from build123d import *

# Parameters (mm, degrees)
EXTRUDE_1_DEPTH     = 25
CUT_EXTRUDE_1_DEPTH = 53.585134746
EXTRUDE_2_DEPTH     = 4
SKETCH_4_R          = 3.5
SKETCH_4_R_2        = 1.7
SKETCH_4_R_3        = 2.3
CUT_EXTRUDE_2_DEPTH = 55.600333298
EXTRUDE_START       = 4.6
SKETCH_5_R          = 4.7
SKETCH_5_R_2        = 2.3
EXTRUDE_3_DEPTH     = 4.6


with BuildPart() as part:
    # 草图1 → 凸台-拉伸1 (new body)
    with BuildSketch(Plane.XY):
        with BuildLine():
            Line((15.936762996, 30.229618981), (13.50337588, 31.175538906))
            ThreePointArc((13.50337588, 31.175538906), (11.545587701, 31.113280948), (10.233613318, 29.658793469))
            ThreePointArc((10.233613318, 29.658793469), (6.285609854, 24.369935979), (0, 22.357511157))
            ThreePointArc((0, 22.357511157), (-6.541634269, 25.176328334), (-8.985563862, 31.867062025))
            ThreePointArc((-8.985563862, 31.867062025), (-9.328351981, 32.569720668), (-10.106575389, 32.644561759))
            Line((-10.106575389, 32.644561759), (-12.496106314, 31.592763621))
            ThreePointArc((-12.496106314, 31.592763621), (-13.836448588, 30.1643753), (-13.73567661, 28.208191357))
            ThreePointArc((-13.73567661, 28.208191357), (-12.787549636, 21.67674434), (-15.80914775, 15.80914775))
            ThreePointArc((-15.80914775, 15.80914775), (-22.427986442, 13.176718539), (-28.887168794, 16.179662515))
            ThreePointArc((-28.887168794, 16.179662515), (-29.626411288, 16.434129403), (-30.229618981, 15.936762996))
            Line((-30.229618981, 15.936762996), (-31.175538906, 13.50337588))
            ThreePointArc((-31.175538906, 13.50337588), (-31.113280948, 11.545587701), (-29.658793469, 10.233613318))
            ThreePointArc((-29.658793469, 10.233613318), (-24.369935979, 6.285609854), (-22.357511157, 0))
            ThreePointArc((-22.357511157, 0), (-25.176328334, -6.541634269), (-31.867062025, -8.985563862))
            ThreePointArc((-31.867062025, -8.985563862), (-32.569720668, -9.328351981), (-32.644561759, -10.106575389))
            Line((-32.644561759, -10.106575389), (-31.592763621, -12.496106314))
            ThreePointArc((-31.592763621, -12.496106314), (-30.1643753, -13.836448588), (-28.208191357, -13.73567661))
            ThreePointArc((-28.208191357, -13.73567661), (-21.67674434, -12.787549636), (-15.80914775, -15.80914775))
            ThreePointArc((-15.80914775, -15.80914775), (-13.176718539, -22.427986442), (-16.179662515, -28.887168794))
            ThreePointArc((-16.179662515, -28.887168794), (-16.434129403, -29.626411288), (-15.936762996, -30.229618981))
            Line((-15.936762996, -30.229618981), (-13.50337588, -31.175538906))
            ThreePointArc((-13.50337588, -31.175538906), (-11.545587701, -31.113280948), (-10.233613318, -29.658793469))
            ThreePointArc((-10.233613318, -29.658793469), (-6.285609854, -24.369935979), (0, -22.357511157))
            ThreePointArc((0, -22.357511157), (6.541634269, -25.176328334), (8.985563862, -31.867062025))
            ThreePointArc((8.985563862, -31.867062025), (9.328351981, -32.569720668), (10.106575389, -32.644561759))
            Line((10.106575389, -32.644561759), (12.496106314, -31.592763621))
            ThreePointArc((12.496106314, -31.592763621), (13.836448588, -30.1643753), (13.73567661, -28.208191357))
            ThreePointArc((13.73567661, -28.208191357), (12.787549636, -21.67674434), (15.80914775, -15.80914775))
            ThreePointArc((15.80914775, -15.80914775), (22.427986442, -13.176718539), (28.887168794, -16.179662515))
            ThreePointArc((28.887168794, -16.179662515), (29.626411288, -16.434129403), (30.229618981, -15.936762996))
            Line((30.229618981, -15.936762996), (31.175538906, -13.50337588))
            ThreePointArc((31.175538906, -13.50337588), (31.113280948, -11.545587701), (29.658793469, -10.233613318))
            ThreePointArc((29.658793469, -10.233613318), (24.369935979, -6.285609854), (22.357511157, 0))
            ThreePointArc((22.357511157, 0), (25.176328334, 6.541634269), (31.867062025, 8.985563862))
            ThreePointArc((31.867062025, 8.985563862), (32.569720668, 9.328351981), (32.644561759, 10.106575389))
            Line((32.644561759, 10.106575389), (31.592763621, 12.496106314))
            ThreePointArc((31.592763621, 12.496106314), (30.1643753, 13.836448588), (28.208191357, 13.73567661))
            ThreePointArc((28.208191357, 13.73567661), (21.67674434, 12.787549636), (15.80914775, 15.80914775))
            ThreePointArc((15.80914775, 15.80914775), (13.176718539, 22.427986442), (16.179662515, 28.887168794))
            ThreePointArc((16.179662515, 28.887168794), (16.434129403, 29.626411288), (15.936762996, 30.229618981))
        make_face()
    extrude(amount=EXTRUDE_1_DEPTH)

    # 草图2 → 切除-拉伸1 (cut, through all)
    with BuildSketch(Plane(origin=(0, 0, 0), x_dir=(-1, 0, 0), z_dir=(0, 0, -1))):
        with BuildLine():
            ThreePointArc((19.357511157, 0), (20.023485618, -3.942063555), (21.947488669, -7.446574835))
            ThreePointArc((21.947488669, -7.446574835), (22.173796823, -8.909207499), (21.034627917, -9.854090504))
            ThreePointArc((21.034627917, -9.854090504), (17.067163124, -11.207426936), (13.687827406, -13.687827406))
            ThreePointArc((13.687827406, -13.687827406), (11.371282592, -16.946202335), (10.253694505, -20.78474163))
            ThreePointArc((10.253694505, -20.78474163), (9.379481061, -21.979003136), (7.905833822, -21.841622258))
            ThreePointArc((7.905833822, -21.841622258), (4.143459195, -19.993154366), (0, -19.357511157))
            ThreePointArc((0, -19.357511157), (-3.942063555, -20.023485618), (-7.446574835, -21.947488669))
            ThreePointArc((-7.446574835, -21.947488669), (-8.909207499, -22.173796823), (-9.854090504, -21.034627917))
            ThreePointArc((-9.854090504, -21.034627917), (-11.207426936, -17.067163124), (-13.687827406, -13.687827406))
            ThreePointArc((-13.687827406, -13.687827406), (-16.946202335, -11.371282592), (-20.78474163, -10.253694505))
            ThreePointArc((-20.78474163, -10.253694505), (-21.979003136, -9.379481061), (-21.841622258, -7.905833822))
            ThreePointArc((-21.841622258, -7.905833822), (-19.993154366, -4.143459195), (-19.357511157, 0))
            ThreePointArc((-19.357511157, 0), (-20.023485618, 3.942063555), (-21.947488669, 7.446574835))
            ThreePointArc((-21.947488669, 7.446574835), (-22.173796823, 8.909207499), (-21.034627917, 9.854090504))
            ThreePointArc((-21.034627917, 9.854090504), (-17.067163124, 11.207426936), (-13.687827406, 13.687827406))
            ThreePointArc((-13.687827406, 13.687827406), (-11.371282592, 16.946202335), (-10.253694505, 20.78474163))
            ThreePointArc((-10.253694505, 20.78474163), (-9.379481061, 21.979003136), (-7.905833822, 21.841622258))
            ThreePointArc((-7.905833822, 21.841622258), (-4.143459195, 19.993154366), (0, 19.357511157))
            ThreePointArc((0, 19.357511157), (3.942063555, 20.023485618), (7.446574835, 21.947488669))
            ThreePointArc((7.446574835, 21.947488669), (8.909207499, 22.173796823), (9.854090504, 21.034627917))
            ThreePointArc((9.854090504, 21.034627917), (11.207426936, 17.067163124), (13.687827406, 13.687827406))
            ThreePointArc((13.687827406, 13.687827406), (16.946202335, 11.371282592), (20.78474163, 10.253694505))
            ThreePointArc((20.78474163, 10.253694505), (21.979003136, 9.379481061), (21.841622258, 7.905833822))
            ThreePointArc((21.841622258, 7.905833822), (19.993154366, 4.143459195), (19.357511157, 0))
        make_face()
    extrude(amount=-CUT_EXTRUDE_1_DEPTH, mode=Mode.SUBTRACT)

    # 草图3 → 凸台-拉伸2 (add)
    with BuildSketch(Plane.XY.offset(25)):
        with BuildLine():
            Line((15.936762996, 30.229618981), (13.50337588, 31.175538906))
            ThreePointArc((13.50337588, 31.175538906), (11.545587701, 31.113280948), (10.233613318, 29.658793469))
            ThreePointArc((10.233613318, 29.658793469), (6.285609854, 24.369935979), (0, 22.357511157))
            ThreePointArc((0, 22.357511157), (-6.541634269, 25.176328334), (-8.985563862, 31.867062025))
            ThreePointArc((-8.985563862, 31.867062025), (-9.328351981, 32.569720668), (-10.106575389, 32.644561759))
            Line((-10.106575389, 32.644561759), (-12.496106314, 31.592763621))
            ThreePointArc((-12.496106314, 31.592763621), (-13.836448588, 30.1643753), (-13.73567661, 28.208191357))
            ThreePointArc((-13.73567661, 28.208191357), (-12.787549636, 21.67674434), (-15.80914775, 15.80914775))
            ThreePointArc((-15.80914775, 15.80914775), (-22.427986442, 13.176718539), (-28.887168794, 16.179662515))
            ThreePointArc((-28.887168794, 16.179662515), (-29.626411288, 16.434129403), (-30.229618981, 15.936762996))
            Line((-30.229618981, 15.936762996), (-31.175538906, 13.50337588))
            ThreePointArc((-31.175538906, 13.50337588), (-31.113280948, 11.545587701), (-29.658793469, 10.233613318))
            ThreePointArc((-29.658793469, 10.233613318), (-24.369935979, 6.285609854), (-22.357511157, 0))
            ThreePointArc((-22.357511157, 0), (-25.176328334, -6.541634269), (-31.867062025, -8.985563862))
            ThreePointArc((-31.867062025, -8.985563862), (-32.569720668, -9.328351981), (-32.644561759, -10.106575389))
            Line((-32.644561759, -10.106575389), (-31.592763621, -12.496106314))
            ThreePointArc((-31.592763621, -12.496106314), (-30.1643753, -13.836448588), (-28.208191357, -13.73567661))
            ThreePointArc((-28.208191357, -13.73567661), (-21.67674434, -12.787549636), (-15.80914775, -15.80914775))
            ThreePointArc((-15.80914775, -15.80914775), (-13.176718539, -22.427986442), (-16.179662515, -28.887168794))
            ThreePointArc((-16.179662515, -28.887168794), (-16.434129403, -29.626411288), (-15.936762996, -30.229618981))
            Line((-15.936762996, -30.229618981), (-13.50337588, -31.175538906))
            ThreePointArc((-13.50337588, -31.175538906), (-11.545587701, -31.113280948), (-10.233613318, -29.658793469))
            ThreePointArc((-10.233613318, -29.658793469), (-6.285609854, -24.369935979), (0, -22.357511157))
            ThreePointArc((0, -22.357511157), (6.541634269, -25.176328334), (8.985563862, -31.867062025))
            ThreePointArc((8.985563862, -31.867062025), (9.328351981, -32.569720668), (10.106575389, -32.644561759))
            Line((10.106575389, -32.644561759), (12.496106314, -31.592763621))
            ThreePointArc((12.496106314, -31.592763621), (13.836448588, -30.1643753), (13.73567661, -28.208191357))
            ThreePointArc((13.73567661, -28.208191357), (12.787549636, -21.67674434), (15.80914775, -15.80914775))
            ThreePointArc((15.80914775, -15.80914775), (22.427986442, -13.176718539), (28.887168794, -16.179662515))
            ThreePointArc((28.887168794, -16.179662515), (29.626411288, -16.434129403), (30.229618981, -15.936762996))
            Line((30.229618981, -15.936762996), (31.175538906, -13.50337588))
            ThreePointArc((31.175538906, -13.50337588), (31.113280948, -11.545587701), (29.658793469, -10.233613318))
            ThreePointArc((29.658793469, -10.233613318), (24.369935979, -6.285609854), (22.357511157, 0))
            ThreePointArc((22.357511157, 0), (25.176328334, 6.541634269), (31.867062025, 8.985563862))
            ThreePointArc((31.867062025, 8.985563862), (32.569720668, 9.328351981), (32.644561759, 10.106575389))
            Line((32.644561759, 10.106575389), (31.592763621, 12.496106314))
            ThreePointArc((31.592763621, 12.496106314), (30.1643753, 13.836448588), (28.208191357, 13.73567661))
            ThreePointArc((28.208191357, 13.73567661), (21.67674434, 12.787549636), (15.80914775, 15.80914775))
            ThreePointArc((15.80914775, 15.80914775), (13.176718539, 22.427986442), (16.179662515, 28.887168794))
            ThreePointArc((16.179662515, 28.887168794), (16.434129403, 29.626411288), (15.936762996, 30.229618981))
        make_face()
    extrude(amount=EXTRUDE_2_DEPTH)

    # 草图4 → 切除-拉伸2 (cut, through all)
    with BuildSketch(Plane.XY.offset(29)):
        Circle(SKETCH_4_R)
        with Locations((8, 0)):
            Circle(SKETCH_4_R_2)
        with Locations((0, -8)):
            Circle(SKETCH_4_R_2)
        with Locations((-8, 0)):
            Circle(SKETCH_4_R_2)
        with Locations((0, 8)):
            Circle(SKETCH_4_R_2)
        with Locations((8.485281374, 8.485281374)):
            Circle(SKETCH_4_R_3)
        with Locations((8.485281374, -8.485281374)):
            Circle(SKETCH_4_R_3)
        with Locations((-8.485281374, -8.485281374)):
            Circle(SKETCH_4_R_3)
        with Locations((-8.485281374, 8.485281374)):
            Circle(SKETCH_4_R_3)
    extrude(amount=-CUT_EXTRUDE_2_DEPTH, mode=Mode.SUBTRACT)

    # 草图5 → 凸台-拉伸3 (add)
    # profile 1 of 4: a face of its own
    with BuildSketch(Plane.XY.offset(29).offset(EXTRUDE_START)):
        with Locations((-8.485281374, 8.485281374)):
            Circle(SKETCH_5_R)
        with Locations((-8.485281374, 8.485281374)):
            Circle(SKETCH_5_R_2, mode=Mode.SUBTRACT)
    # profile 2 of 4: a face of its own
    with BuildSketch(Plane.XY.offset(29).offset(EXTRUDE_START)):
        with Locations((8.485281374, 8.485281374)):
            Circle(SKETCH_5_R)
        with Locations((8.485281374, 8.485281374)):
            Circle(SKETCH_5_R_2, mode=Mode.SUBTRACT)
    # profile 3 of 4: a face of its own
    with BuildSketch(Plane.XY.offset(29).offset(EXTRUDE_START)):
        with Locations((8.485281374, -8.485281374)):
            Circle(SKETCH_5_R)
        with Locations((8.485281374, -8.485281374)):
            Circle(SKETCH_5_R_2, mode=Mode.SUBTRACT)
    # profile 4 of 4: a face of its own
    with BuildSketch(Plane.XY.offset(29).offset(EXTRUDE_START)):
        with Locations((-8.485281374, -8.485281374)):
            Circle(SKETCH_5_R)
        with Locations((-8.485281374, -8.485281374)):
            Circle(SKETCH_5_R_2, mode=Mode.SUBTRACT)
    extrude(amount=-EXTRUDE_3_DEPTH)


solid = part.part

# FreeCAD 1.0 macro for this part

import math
import FreeCAD as App
import Part
import Sketcher

V = App.Vector
Q = App.Units.Quantity

doc = App.newDocument("Part")
body = doc.addObject("PartDesign::Body", "Body")

# Sketch on XY plane
sketch1 = body.newObject("Sketcher::SketchObject", "Sketch")
sketch1.AttachmentSupport = (doc.getObject("XY_Plane"), [""])
sketch1.MapMode = "FlatFace"
sketch1.addGeometry([
    Part.LineSegment(V(15.936763, 30.229619, 0), V(13.503376, 31.175539, 0)),  # 0
    Part.ArcOfCircle(Part.Circle(V(12.597591, 28.845399, 0), V(0, 0, 1), 2.5), math.radians(68.757621), math.radians(161.012741)),  # 1
    Part.ArcOfCircle(Part.Circle(V(0, 33.179964, 0), V(0, 0, 1), 10.822453), math.radians(-90), math.radians(-18.987259)),  # 2
    Part.ArcOfCircle(Part.Circle(V(0, 31.357511, 0), V(0, 0, 1), 9), math.radians(176.754363), math.radians(270)),  # 3
    Part.ArcOfCircle(Part.Circle(V(-9.784281, 31.912355, 0), V(0, 0, 1), 0.8), math.radians(-3.245637), math.radians(113.757621)),  # 4
    Part.LineSegment(V(-10.106575, 32.644562, 0), V(-12.496106, 31.592764, 0)),  # 5
    Part.ArcOfCircle(Part.Circle(V(-11.488935, 29.304619, 0), V(0, 0, 1), 2.5), math.radians(113.75762), math.radians(206.012741)),  # 6
    Part.ArcOfCircle(Part.Circle(V(-23.461777, 23.461777, 0), V(0, 0, 1), 10.822453), math.radians(-45), math.radians(26.012741)),  # 7
    Part.ArcOfCircle(Part.Circle(V(-22.173109, 22.173109, 0), V(0, 0, 1), 9), math.radians(-138.245637), math.radians(-45)),  # 8
    Part.ArcOfCircle(Part.Circle(V(-29.483974, 15.646912, 0), V(0, 0, 1), 0.8), math.radians(41.754363), math.radians(158.757621)),  # 9
    Part.LineSegment(V(-30.229619, 15.936763, 0), V(-31.175539, 13.503376, 0)),  # 10
    Part.ArcOfCircle(Part.Circle(V(-28.845399, 12.597591, 0), V(0, 0, 1), 2.5), math.radians(158.757621), math.radians(251.012741)),  # 11
    Part.ArcOfCircle(Part.Circle(V(-33.179964, 0, 0), V(0, 0, 1), 10.822453), math.radians(0), math.radians(71.012741)),  # 12
    Part.ArcOfCircle(Part.Circle(V(-31.357511, 0, 0), V(0, 0, 1), 9), math.radians(-93.245637), math.radians(0)),  # 13
    Part.ArcOfCircle(Part.Circle(V(-31.912355, -9.784281, 0), V(0, 0, 1), 0.8), math.radians(86.754363), math.radians(203.757621)),  # 14
    Part.LineSegment(V(-32.644562, -10.106575, 0), V(-31.592764, -12.496106, 0)),  # 15
    Part.ArcOfCircle(Part.Circle(V(-29.304619, -11.488935, 0), V(0, 0, 1), 2.5), math.radians(-156.24238), math.radians(-63.987259)),  # 16
    Part.ArcOfCircle(Part.Circle(V(-23.461777, -23.461777, 0), V(0, 0, 1), 10.822453), math.radians(45), math.radians(116.012741)),  # 17
    Part.ArcOfCircle(Part.Circle(V(-22.173109, -22.173109, 0), V(0, 0, 1), 9), math.radians(-48.245637), math.radians(45)),  # 18
    Part.ArcOfCircle(Part.Circle(V(-15.646912, -29.483974, 0), V(0, 0, 1), 0.8), math.radians(131.754363), math.radians(248.757621)),  # 19
    Part.LineSegment(V(-15.936763, -30.229619, 0), V(-13.503376, -31.175539, 0)),  # 20
    Part.ArcOfCircle(Part.Circle(V(-12.597591, -28.845399, 0), V(0, 0, 1), 2.5), math.radians(-111.242379), math.radians(-18.987259)),  # 21
    Part.ArcOfCircle(Part.Circle(V(0, -33.179964, 0), V(0, 0, 1), 10.822453), math.radians(90), math.radians(161.012741)),  # 22
    Part.ArcOfCircle(Part.Circle(V(0, -31.357511, 0), V(0, 0, 1), 9), math.radians(-3.245637), math.radians(90)),  # 23
    Part.ArcOfCircle(Part.Circle(V(9.784281, -31.912355, 0), V(0, 0, 1), 0.8), math.radians(176.754363), math.radians(293.757621)),  # 24
    Part.LineSegment(V(10.106575, -32.644562, 0), V(12.496106, -31.592764, 0)),  # 25
    Part.ArcOfCircle(Part.Circle(V(11.488935, -29.304619, 0), V(0, 0, 1), 2.5), math.radians(-66.24238), math.radians(26.012741)),  # 26
    Part.ArcOfCircle(Part.Circle(V(23.461777, -23.461777, 0), V(0, 0, 1), 10.822453), math.radians(135), math.radians(206.012741)),  # 27
    Part.ArcOfCircle(Part.Circle(V(22.173109, -22.173109, 0), V(0, 0, 1), 9), math.radians(41.754363), math.radians(135)),  # 28
    Part.ArcOfCircle(Part.Circle(V(29.483974, -15.646912, 0), V(0, 0, 1), 0.8), math.radians(-138.245637), math.radians(-21.242379)),  # 29
    Part.LineSegment(V(30.229619, -15.936763, 0), V(31.175539, -13.503376, 0)),  # 30
    Part.ArcOfCircle(Part.Circle(V(28.845399, -12.597591, 0), V(0, 0, 1), 2.5), math.radians(-21.242379), math.radians(71.012741)),  # 31
    Part.ArcOfCircle(Part.Circle(V(33.179964, 0, 0), V(0, 0, 1), 10.822453), math.radians(180), math.radians(251.012741)),  # 32
    Part.ArcOfCircle(Part.Circle(V(31.357511, 0, 0), V(0, 0, 1), 9), math.radians(86.754363), math.radians(180)),  # 33
    Part.ArcOfCircle(Part.Circle(V(31.912355, 9.784281, 0), V(0, 0, 1), 0.8), math.radians(-93.245637), math.radians(23.757621)),  # 34
    Part.LineSegment(V(32.644562, 10.106575, 0), V(31.592764, 12.496106, 0)),  # 35
    Part.ArcOfCircle(Part.Circle(V(29.304619, 11.488935, 0), V(0, 0, 1), 2.5), math.radians(23.75762), math.radians(116.012741)),  # 36
    Part.ArcOfCircle(Part.Circle(V(23.461777, 23.461777, 0), V(0, 0, 1), 10.822453), math.radians(-135), math.radians(-63.987259)),  # 37
    Part.ArcOfCircle(Part.Circle(V(22.173109, 22.173109, 0), V(0, 0, 1), 9), math.radians(131.754363), math.radians(225)),  # 38
    Part.ArcOfCircle(Part.Circle(V(15.646912, 29.483974, 0), V(0, 0, 1), 0.8), math.radians(-48.245637), math.radians(68.757621)),  # 39
], False)
sketch1.addConstraint([
    Sketcher.Constraint("Coincident", 0, 2, 1, 1),
    Sketcher.Constraint("Coincident", 1, 2, 2, 2),
    Sketcher.Constraint("Coincident", 2, 1, 3, 2),
    Sketcher.Constraint("Coincident", 3, 1, 4, 1),
    Sketcher.Constraint("Coincident", 4, 2, 5, 1),
    Sketcher.Constraint("Coincident", 5, 2, 6, 1),
    Sketcher.Constraint("Coincident", 6, 2, 7, 2),
    Sketcher.Constraint("Coincident", 7, 1, 8, 2),
    Sketcher.Constraint("Coincident", 8, 1, 9, 1),
    Sketcher.Constraint("Coincident", 9, 2, 10, 1),
    Sketcher.Constraint("Coincident", 10, 2, 11, 1),
    Sketcher.Constraint("Coincident", 11, 2, 12, 2),
    Sketcher.Constraint("Coincident", 12, 1, 13, 2),
    Sketcher.Constraint("Coincident", 13, 1, 14, 1),
    Sketcher.Constraint("Coincident", 14, 2, 15, 1),
    Sketcher.Constraint("Coincident", 15, 2, 16, 1),
    Sketcher.Constraint("Coincident", 16, 2, 17, 2),
    Sketcher.Constraint("Coincident", 17, 1, 18, 2),
    Sketcher.Constraint("Coincident", 18, 1, 19, 1),
    Sketcher.Constraint("Coincident", 19, 2, 20, 1),
    Sketcher.Constraint("Coincident", 20, 2, 21, 1),
    Sketcher.Constraint("Coincident", 21, 2, 22, 2),
    Sketcher.Constraint("Coincident", 22, 1, 23, 2),
    Sketcher.Constraint("Coincident", 23, 1, 24, 1),
    Sketcher.Constraint("Coincident", 24, 2, 25, 1),
    Sketcher.Constraint("Coincident", 25, 2, 26, 1),
    Sketcher.Constraint("Coincident", 26, 2, 27, 2),
    Sketcher.Constraint("Coincident", 27, 1, 28, 2),
    Sketcher.Constraint("Coincident", 28, 1, 29, 1),
    Sketcher.Constraint("Coincident", 29, 2, 30, 1),
    Sketcher.Constraint("Coincident", 30, 2, 31, 1),
    Sketcher.Constraint("Coincident", 31, 2, 32, 2),
    Sketcher.Constraint("Coincident", 32, 1, 33, 2),
    Sketcher.Constraint("Coincident", 33, 1, 34, 1),
    Sketcher.Constraint("Coincident", 34, 2, 35, 1),
    Sketcher.Constraint("Coincident", 35, 2, 36, 1),
    Sketcher.Constraint("Coincident", 36, 2, 37, 2),
    Sketcher.Constraint("Coincident", 37, 1, 38, 2),
    Sketcher.Constraint("Coincident", 38, 1, 39, 1),
    Sketcher.Constraint("Coincident", 39, 2, 0, 1),
    Sketcher.Constraint("PointOnObject", 2, 3, -2),
    Sketcher.Constraint("PointOnObject", 3, 3, -2),
    Sketcher.Constraint("PointOnObject", 12, 3, -1),
    Sketcher.Constraint("PointOnObject", 13, 3, -1),
    Sketcher.Constraint("PointOnObject", 22, 3, -2),
    Sketcher.Constraint("PointOnObject", 23, 3, -2),
    Sketcher.Constraint("PointOnObject", 32, 3, -1),
    Sketcher.Constraint("PointOnObject", 33, 3, -1),
    Sketcher.Constraint("PointOnObject", 2, 1, -2),
    Sketcher.Constraint("PointOnObject", 12, 1, -1),
    Sketcher.Constraint("PointOnObject", 22, 1, -2),
    Sketcher.Constraint("PointOnObject", 32, 1, -1),
    Sketcher.Constraint("Radius", 3, Q("9 mm")),
    Sketcher.Constraint("Radius", 8, Q("9 mm")),
    Sketcher.Constraint("Radius", 13, Q("9 mm")),
    Sketcher.Constraint("Radius", 18, Q("9 mm")),
    Sketcher.Constraint("Radius", 23, Q("9 mm")),
    Sketcher.Constraint("Radius", 28, Q("9 mm")),
    Sketcher.Constraint("Radius", 33, Q("9 mm")),
    Sketcher.Constraint("Radius", 38, Q("9 mm")),
    Sketcher.Constraint("Radius", 1, Q("2.5 mm")),
    Sketcher.Constraint("Radius", 4, Q("0.8 mm")),
    Sketcher.Constraint("Radius", 6, Q("2.5 mm")),
    Sketcher.Constraint("Radius", 9, Q("0.8 mm")),
    Sketcher.Constraint("Radius", 11, Q("2.5 mm")),
    Sketcher.Constraint("Radius", 14, Q("0.8 mm")),
    Sketcher.Constraint("Radius", 16, Q("2.5 mm")),
    Sketcher.Constraint("Radius", 19, Q("0.8 mm")),
    Sketcher.Constraint("Radius", 21, Q("2.5 mm")),
    Sketcher.Constraint("Radius", 24, Q("0.8 mm")),
    Sketcher.Constraint("Radius", 26, Q("2.5 mm")),
    Sketcher.Constraint("Radius", 29, Q("0.8 mm")),
    Sketcher.Constraint("Radius", 31, Q("2.5 mm")),
    Sketcher.Constraint("Radius", 34, Q("0.8 mm")),
    Sketcher.Constraint("Radius", 36, Q("2.5 mm")),
    Sketcher.Constraint("Radius", 39, Q("0.8 mm")),
    Sketcher.Constraint("Radius", 2, Q("10.822453 mm")),
    Sketcher.Constraint("Radius", 7, Q("10.822453 mm")),
    Sketcher.Constraint("Radius", 12, Q("10.822453 mm")),
    Sketcher.Constraint("Radius", 17, Q("10.822453 mm")),
    Sketcher.Constraint("Radius", 22, Q("10.822453 mm")),
    Sketcher.Constraint("Radius", 27, Q("10.822453 mm")),
    Sketcher.Constraint("Radius", 32, Q("10.822453 mm")),
    Sketcher.Constraint("Radius", 37, Q("10.822453 mm")),
    Sketcher.Constraint("DistanceY", -1, 1, 1, 3, Q("28.845399 mm")),
    Sketcher.Constraint("DistanceX", 11, 3, -1, 1, Q("28.845399 mm")),
    Sketcher.Constraint("DistanceY", 21, 3, -1, 1, Q("28.845399 mm")),
    Sketcher.Constraint("DistanceX", -1, 1, 31, 3, Q("28.845399 mm")),
    Sketcher.Constraint("DistanceX", -1, 1, 1, 3, Q("12.597591 mm")),
    Sketcher.Constraint("DistanceX", 4, 3, -1, 1, Q("9.784281 mm")),
    Sketcher.Constraint("DistanceY", -1, 1, 6, 3, Q("29.304619 mm")),
    Sketcher.Constraint("DistanceX", 8, 3, -1, 1, Q("22.173109 mm")),
    Sketcher.Constraint("DistanceY", -1, 1, 8, 3, Q("22.173109 mm")),
    Sketcher.Constraint("DistanceY", -1, 1, 9, 3, Q("15.646912 mm")),
    Sketcher.Constraint("DistanceY", -1, 1, 11, 3, Q("12.597591 mm")),
    Sketcher.Constraint("DistanceY", 14, 3, -1, 1, Q("9.784281 mm")),
    Sketcher.Constraint("DistanceX", 16, 3, -1, 1, Q("29.304619 mm")),
    Sketcher.Constraint("DistanceX", 18, 3, -1, 1, Q("22.173109 mm")),
    Sketcher.Constraint("DistanceY", 18, 3, -1, 1, Q("22.173109 mm")),
    Sketcher.Constraint("DistanceX", 19, 3, -1, 1, Q("15.646912 mm")),
    Sketcher.Constraint("DistanceX", 21, 3, -1, 1, Q("12.597591 mm")),
    Sketcher.Constraint("DistanceX", -1, 1, 24, 3, Q("9.784281 mm")),
    Sketcher.Constraint("DistanceY", 26, 3, -1, 1, Q("29.304619 mm")),
    Sketcher.Constraint("DistanceX", -1, 1, 28, 3, Q("22.173109 mm")),
    Sketcher.Constraint("DistanceY", 28, 3, -1, 1, Q("22.173109 mm")),
    Sketcher.Constraint("DistanceY", 29, 3, -1, 1, Q("15.646912 mm")),
    Sketcher.Constraint("DistanceY", 31, 3, -1, 1, Q("12.597591 mm")),
    Sketcher.Constraint("DistanceY", -1, 1, 34, 3, Q("9.784281 mm")),
    Sketcher.Constraint("DistanceX", -1, 1, 36, 3, Q("29.304619 mm")),
    Sketcher.Constraint("DistanceX", -1, 1, 38, 3, Q("22.173109 mm")),
    Sketcher.Constraint("DistanceY", -1, 1, 38, 3, Q("22.173109 mm")),
    Sketcher.Constraint("DistanceX", -1, 1, 39, 3, Q("15.646912 mm")),
    Sketcher.Constraint("DistanceY", -1, 1, 0, 2, Q("31.175539 mm")),
    Sketcher.Constraint("DistanceY", -1, 1, 4, 2, Q("32.644562 mm")),
    Sketcher.Constraint("DistanceY", -1, 1, 6, 2, Q("28.208191 mm")),
    Sketcher.Constraint("DistanceX", 8, 1, -1, 1, Q("28.887169 mm")),
    Sketcher.Constraint("DistanceX", 9, 2, -1, 1, Q("30.229619 mm")),
    Sketcher.Constraint("DistanceX", 10, 2, -1, 1, Q("31.175539 mm")),
    Sketcher.Constraint("DistanceX", 14, 2, -1, 1, Q("32.644562 mm")),
    Sketcher.Constraint("DistanceX", 16, 2, -1, 1, Q("28.208191 mm")),
    Sketcher.Constraint("DistanceY", 18, 1, -1, 1, Q("28.887169 mm")),
    Sketcher.Constraint("DistanceY", 19, 2, -1, 1, Q("30.229619 mm")),
    Sketcher.Constraint("DistanceY", 20, 2, -1, 1, Q("31.175539 mm")),
    Sketcher.Constraint("DistanceY", 24, 2, -1, 1, Q("32.644562 mm")),
    Sketcher.Constraint("DistanceY", 26, 2, -1, 1, Q("28.208191 mm")),
    Sketcher.Constraint("DistanceX", -1, 1, 28, 1, Q("28.887169 mm")),
    Sketcher.Constraint("DistanceX", -1, 1, 29, 2, Q("30.229619 mm")),
    Sketcher.Constraint("DistanceX", -1, 1, 30, 2, Q("31.175539 mm")),
    Sketcher.Constraint("DistanceX", -1, 1, 34, 2, Q("32.644562 mm")),
    Sketcher.Constraint("DistanceX", -1, 1, 36, 2, Q("28.208191 mm")),
    Sketcher.Constraint("DistanceY", -1, 1, 38, 1, Q("28.887169 mm")),
    Sketcher.Constraint("DistanceY", -1, 1, 39, 2, Q("30.229619 mm")),
    Sketcher.Constraint("Distance", 5, Q("2.610773 mm")),
    Sketcher.Constraint("Distance", 15, Q("2.610773 mm")),
    Sketcher.Constraint("Distance", 25, Q("2.610773 mm")),
    Sketcher.Constraint("Distance", 35, Q("2.610773 mm")),
    Sketcher.Constraint("DistanceX", 6, 3, -1, 1, Q("11.488935 mm")),
    Sketcher.Constraint("DistanceY", 16, 3, -1, 1, Q("11.488935 mm")),
    Sketcher.Constraint("DistanceX", -1, 1, 26, 3, Q("11.488935 mm")),
    Sketcher.Constraint("DistanceY", -1, 1, 36, 3, Q("11.488935 mm")),
    Sketcher.Constraint("DistanceX", -1, 1, 1, 2, Q("10.233613 mm")),
    Sketcher.Constraint("DistanceX", 3, 1, -1, 1, Q("8.985564 mm")),
    Sketcher.Constraint("DistanceX", 7, 1, -1, 1, Q("15.809148 mm")),
    Sketcher.Constraint("DistanceX", 11, 2, -1, 1, Q("29.658793 mm")),
    Sketcher.Constraint("DistanceX", 13, 1, -1, 1, Q("31.867062 mm")),
    Sketcher.Constraint("DistanceX", 17, 1, -1, 1, Q("15.809148 mm")),
    Sketcher.Constraint("DistanceX", 21, 2, -1, 1, Q("10.233613 mm")),
    Sketcher.Constraint("DistanceX", -1, 1, 23, 1, Q("8.985564 mm")),
    Sketcher.Constraint("DistanceX", -1, 1, 27, 1, Q("15.809148 mm")),
    Sketcher.Constraint("DistanceX", -1, 1, 31, 2, Q("29.658793 mm")),
    Sketcher.Constraint("DistanceX", -1, 1, 33, 1, Q("31.867062 mm")),
    Sketcher.Constraint("DistanceX", -1, 1, 37, 1, Q("15.809148 mm")),
])
pad1 = body.newObject("PartDesign::Pad", "Pad")
pad1.Profile = sketch1
pad1.Length = 25

# Sketch on XY plane
sketch2 = body.newObject("Sketcher::SketchObject", "Sketch001")
sketch2.AttachmentSupport = (doc.getObject("XY_Plane"), [""])
sketch2.MapMode = "FlatFace"
sketch2.addGeometry([
    Part.ArcOfCircle(Part.Circle(V(-31.4, 0, 0), V(0, 0, 1), 12), math.radians(-38), math.radians(0)),  # 0
    Part.ArcOfCircle(Part.Circle(V(-33.2, 0, 0), V(0, 0, 1), 13.8), math.radians(0), math.radians(35)),  # 1
    Part.ArcOfCircle(Part.Circle(V(-20.6, 8.8, 0), V(0, 0, 1), 1.5), math.radians(97), math.radians(215)),  # 2
    Part.ArcOfCircle(Part.Circle(V(-22.2, 22.2, 0), V(0, 0, 1), 12), math.radians(-83), math.radians(-45)),  # 3
    Part.ArcOfCircle(Part.Circle(V(-23.5, 23.5, 0), V(0, 0, 1), 13.8), math.radians(-45), math.radians(-10)),  # 4
    Part.ArcOfCircle(Part.Circle(V(-8.4, 20.8, 0), V(0, 0, 1), 1.5), math.radians(52), math.radians(170)),  # 5
    Part.ArcOfCircle(Part.Circle(V(0, 31.4, 0), V(0, 0, 1), 12), math.radians(-128), math.radians(-90)),  # 6
    Part.ArcOfCircle(Part.Circle(V(0, 33.2, 0), V(0, 0, 1), 13.8), math.radians(-90), math.radians(-55)),  # 7
    Part.ArcOfCircle(Part.Circle(V(8.8, 20.6, 0), V(0, 0, 1), 1.5), math.radians(7), math.radians(125)),  # 8
    Part.ArcOfCircle(Part.Circle(V(22.2, 22.2, 0), V(0, 0, 1), 12), math.radians(-173), math.radians(-135)),  # 9
    Part.ArcOfCircle(Part.Circle(V(23.5, 23.5, 0), V(0, 0, 1), 13.8), math.radians(-135), math.radians(-100)),  # 10
    Part.ArcOfCircle(Part.Circle(V(20.8, 8.4, 0), V(0, 0, 1), 1.5), math.radians(-38), math.radians(80)),  # 11
    Part.ArcOfCircle(Part.Circle(V(31.4, 0, 0), V(0, 0, 1), 12), math.radians(142), math.radians(180)),  # 12
    Part.ArcOfCircle(Part.Circle(V(33.2, 0, 0), V(0, 0, 1), 13.8), math.radians(180), math.radians(215)),  # 13
    Part.ArcOfCircle(Part.Circle(V(20.6, -8.8, 0), V(0, 0, 1), 1.5), math.radians(-83), math.radians(35)),  # 14
    Part.ArcOfCircle(Part.Circle(V(22.2, -22.2, 0), V(0, 0, 1), 12), math.radians(97), math.radians(135)),  # 15
    Part.ArcOfCircle(Part.Circle(V(23.5, -23.5, 0), V(0, 0, 1), 13.8), math.radians(135), math.radians(170)),  # 16
    Part.ArcOfCircle(Part.Circle(V(8.4, -20.8, 0), V(0, 0, 1), 1.5), math.radians(-128), math.radians(-10)),  # 17
    Part.ArcOfCircle(Part.Circle(V(0, -31.4, 0), V(0, 0, 1), 12), math.radians(52), math.radians(90)),  # 18
    Part.ArcOfCircle(Part.Circle(V(0, -33.2, 0), V(0, 0, 1), 13.8), math.radians(90), math.radians(125)),  # 19
    Part.ArcOfCircle(Part.Circle(V(-8.8, -20.6, 0), V(0, 0, 1), 1.5), math.radians(-173), math.radians(-55)),  # 20
    Part.ArcOfCircle(Part.Circle(V(-22.2, -22.2, 0), V(0, 0, 1), 12), math.radians(7), math.radians(45)),  # 21
    Part.ArcOfCircle(Part.Circle(V(-23.5, -23.5, 0), V(0, 0, 1), 13.8), math.radians(45), math.radians(80)),  # 22
    Part.ArcOfCircle(Part.Circle(V(-20.8, -8.4, 0), V(0, 0, 1), 1.5), math.radians(142), math.radians(260)),  # 23
], False)
sketch2.addConstraint([
    Sketcher.Constraint("Tangent", 0, 2, 1, 1),
    Sketcher.Constraint("Tangent", 1, 2, 2, 2),
    Sketcher.Constraint("Tangent", 2, 1, 3, 1),
    Sketcher.Constraint("Tangent", 3, 2, 4, 1),
    Sketcher.Constraint("Tangent", 4, 2, 5, 2),
    Sketcher.Constraint("Tangent", 5, 1, 6, 1),
    Sketcher.Constraint("Tangent", 6, 2, 7, 1),
    Sketcher.Constraint("Tangent", 7, 2, 8, 2),
    Sketcher.Constraint("Tangent", 8, 1, 9, 1),
    Sketcher.Constraint("Tangent", 9, 2, 10, 1),
    Sketcher.Constraint("Tangent", 10, 2, 11, 2),
    Sketcher.Constraint("Tangent", 11, 1, 12, 1),
    Sketcher.Constraint("Tangent", 12, 2, 13, 1),
    Sketcher.Constraint("Tangent", 13, 2, 14, 2),
    Sketcher.Constraint("Tangent", 14, 1, 15, 1),
    Sketcher.Constraint("Tangent", 15, 2, 16, 1),
    Sketcher.Constraint("Tangent", 16, 2, 17, 2),
    Sketcher.Constraint("Tangent", 17, 1, 18, 1),
    Sketcher.Constraint("Tangent", 18, 2, 19, 1),
    Sketcher.Constraint("Tangent", 19, 2, 20, 2),
    Sketcher.Constraint("Tangent", 20, 1, 21, 1),
    Sketcher.Constraint("Tangent", 21, 2, 22, 1),
    Sketcher.Constraint("Tangent", 22, 2, 23, 2),
    Sketcher.Constraint("Tangent", 23, 1, 0, 1),
    Sketcher.Constraint("Equal", 0, 3),
    Sketcher.Constraint("Equal", 1, 4),
    Sketcher.Constraint("Equal", 2, 5),
    Sketcher.Constraint("Equal", 3, 6),
    Sketcher.Constraint("Equal", 4, 7),
    Sketcher.Constraint("Equal", 5, 8),
    Sketcher.Constraint("Equal", 6, 9),
    Sketcher.Constraint("Equal", 7, 10),
    Sketcher.Constraint("Equal", 8, 11),
    Sketcher.Constraint("Equal", 9, 12),
    Sketcher.Constraint("Equal", 10, 13),
    Sketcher.Constraint("Equal", 11, 14),
    Sketcher.Constraint("Equal", 12, 15),
    Sketcher.Constraint("Equal", 13, 16),
    Sketcher.Constraint("Equal", 14, 17),
    Sketcher.Constraint("Equal", 15, 18),
    Sketcher.Constraint("Equal", 16, 19),
    Sketcher.Constraint("Equal", 17, 20),
    Sketcher.Constraint("Equal", 18, 21),
    Sketcher.Constraint("Equal", 19, 22),
    Sketcher.Constraint("Equal", 20, 23),
    Sketcher.Constraint("Symmetric", 0, 3, 12, 3, -1, 1),
    Sketcher.Constraint("Symmetric", 2, 3, 14, 3, -1, 1),
    Sketcher.Constraint("Symmetric", 4, 3, 16, 3, -1, 1),
    Sketcher.Constraint("Symmetric", 6, 3, 18, 3, -1, 1),
    Sketcher.Constraint("Symmetric", 8, 3, 20, 3, -1, 1),
    Sketcher.Constraint("Symmetric", 10, 3, 22, 3, -1, 1),
    Sketcher.Constraint("Symmetric", 3, 3, 9, 3, -2),
    Sketcher.Constraint("PointOnObject", 0, 3, -1),
    Sketcher.Constraint("PointOnObject", 1, 3, -1),
    Sketcher.Constraint("PointOnObject", 6, 3, -2),
    Sketcher.Constraint("PointOnObject", 7, 3, -2),
    Sketcher.Constraint("Horizontal", 4, 3, 10, 3),
    Sketcher.Constraint("Radius", 0, Q("12 mm")),
    Sketcher.Constraint("Radius", 2, Q("1.5 mm")),
    Sketcher.Constraint("Radius", 1, Q("13.822453 mm")),
    Sketcher.Constraint("DistanceX", 2, 3, 5, 3, Q("12.233799 mm")),
    Sketcher.Constraint("DistanceY", 11, 3, 8, 3, Q("12.233799 mm")),
    Sketcher.Constraint("DistanceY", 3, 2, 4, 2, Q("7.346801 mm")),
    Sketcher.Constraint("DistanceX", 0, 3, -1, 1, Q("31.357511 mm")),
    Sketcher.Constraint("DistanceX", 3, 3, -1, 1, Q("22.173109 mm")),
])
pocket1 = body.newObject("PartDesign::Pocket", "Pocket")
pocket1.Profile = sketch2
pocket1.Type = "ThroughAll"
pocket1.Reversed = True

# Sketch on XY plane
sketch3 = body.newObject("Sketcher::SketchObject", "Sketch002")
sketch3.AttachmentSupport = (doc.getObject("XY_Plane"), [""])
sketch3.MapMode = "FlatFace"
sketch3.AttachmentOffset = App.Placement(V(0, 0, 25), App.Rotation())
sketch3.addGeometry([
    Part.LineSegment(V(15.936763, 30.229619, 0), V(13.503376, 31.175539, 0)),  # 0
    Part.ArcOfCircle(Part.Circle(V(12.597591, 28.845399, 0), V(0, 0, 1), 2.5), math.radians(68.757621), math.radians(161.012741)),  # 1
    Part.ArcOfCircle(Part.Circle(V(0, 33.179964, 0), V(0, 0, 1), 10.822453), math.radians(-90), math.radians(-18.987259)),  # 2
    Part.ArcOfCircle(Part.Circle(V(0, 31.357511, 0), V(0, 0, 1), 9), math.radians(176.754363), math.radians(270)),  # 3
    Part.ArcOfCircle(Part.Circle(V(-9.784281, 31.912355, 0), V(0, 0, 1), 0.8), math.radians(-3.245637), math.radians(113.757621)),  # 4
    Part.LineSegment(V(-10.106575, 32.644562, 0), V(-12.496106, 31.592764, 0)),  # 5
    Part.ArcOfCircle(Part.Circle(V(-11.488935, 29.304619, 0), V(0, 0, 1), 2.5), math.radians(113.75762), math.radians(206.012741)),  # 6
    Part.ArcOfCircle(Part.Circle(V(-23.461777, 23.461777, 0), V(0, 0, 1), 10.822453), math.radians(-45), math.radians(26.012741)),  # 7
    Part.ArcOfCircle(Part.Circle(V(-22.173109, 22.173109, 0), V(0, 0, 1), 9), math.radians(-138.245637), math.radians(-45)),  # 8
    Part.ArcOfCircle(Part.Circle(V(-29.483974, 15.646912, 0), V(0, 0, 1), 0.8), math.radians(41.754363), math.radians(158.757621)),  # 9
    Part.LineSegment(V(-30.229619, 15.936763, 0), V(-31.175539, 13.503376, 0)),  # 10
    Part.ArcOfCircle(Part.Circle(V(-28.845399, 12.597591, 0), V(0, 0, 1), 2.5), math.radians(158.757621), math.radians(251.012741)),  # 11
    Part.ArcOfCircle(Part.Circle(V(-33.179964, 0, 0), V(0, 0, 1), 10.822453), math.radians(0), math.radians(71.012741)),  # 12
    Part.ArcOfCircle(Part.Circle(V(-31.357511, 0, 0), V(0, 0, 1), 9), math.radians(-93.245637), math.radians(0)),  # 13
    Part.ArcOfCircle(Part.Circle(V(-31.912355, -9.784281, 0), V(0, 0, 1), 0.8), math.radians(86.754363), math.radians(203.757621)),  # 14
    Part.LineSegment(V(-32.644562, -10.106575, 0), V(-31.592764, -12.496106, 0)),  # 15
    Part.ArcOfCircle(Part.Circle(V(-29.304619, -11.488935, 0), V(0, 0, 1), 2.5), math.radians(-156.24238), math.radians(-63.987259)),  # 16
    Part.ArcOfCircle(Part.Circle(V(-23.461777, -23.461777, 0), V(0, 0, 1), 10.822453), math.radians(45), math.radians(116.012741)),  # 17
    Part.ArcOfCircle(Part.Circle(V(-22.173109, -22.173109, 0), V(0, 0, 1), 9), math.radians(-48.245637), math.radians(45)),  # 18
    Part.ArcOfCircle(Part.Circle(V(-15.646912, -29.483974, 0), V(0, 0, 1), 0.8), math.radians(131.754363), math.radians(248.757621)),  # 19
    Part.LineSegment(V(-15.936763, -30.229619, 0), V(-13.503376, -31.175539, 0)),  # 20
    Part.ArcOfCircle(Part.Circle(V(-12.597591, -28.845399, 0), V(0, 0, 1), 2.5), math.radians(-111.242379), math.radians(-18.987259)),  # 21
    Part.ArcOfCircle(Part.Circle(V(0, -33.179964, 0), V(0, 0, 1), 10.822453), math.radians(90), math.radians(161.012741)),  # 22
    Part.ArcOfCircle(Part.Circle(V(0, -31.357511, 0), V(0, 0, 1), 9), math.radians(-3.245637), math.radians(90)),  # 23
    Part.ArcOfCircle(Part.Circle(V(9.784281, -31.912355, 0), V(0, 0, 1), 0.8), math.radians(176.754363), math.radians(293.757621)),  # 24
    Part.LineSegment(V(10.106575, -32.644562, 0), V(12.496106, -31.592764, 0)),  # 25
    Part.ArcOfCircle(Part.Circle(V(11.488935, -29.304619, 0), V(0, 0, 1), 2.5), math.radians(-66.24238), math.radians(26.012741)),  # 26
    Part.ArcOfCircle(Part.Circle(V(23.461777, -23.461777, 0), V(0, 0, 1), 10.822453), math.radians(135), math.radians(206.012741)),  # 27
    Part.ArcOfCircle(Part.Circle(V(22.173109, -22.173109, 0), V(0, 0, 1), 9), math.radians(41.754363), math.radians(135)),  # 28
    Part.ArcOfCircle(Part.Circle(V(29.483974, -15.646912, 0), V(0, 0, 1), 0.8), math.radians(-138.245637), math.radians(-21.242379)),  # 29
    Part.LineSegment(V(30.229619, -15.936763, 0), V(31.175539, -13.503376, 0)),  # 30
    Part.ArcOfCircle(Part.Circle(V(28.845399, -12.597591, 0), V(0, 0, 1), 2.5), math.radians(-21.242379), math.radians(71.012741)),  # 31
    Part.ArcOfCircle(Part.Circle(V(33.179964, 0, 0), V(0, 0, 1), 10.822453), math.radians(180), math.radians(251.012741)),  # 32
    Part.ArcOfCircle(Part.Circle(V(31.357511, 0, 0), V(0, 0, 1), 9), math.radians(86.754363), math.radians(180)),  # 33
    Part.ArcOfCircle(Part.Circle(V(31.912355, 9.784281, 0), V(0, 0, 1), 0.8), math.radians(-93.245637), math.radians(23.757621)),  # 34
    Part.LineSegment(V(32.644562, 10.106575, 0), V(31.592764, 12.496106, 0)),  # 35
    Part.ArcOfCircle(Part.Circle(V(29.304619, 11.488935, 0), V(0, 0, 1), 2.5), math.radians(23.75762), math.radians(116.012741)),  # 36
    Part.ArcOfCircle(Part.Circle(V(23.461777, 23.461777, 0), V(0, 0, 1), 10.822453), math.radians(-135), math.radians(-63.987259)),  # 37
    Part.ArcOfCircle(Part.Circle(V(22.173109, 22.173109, 0), V(0, 0, 1), 9), math.radians(131.754363), math.radians(225)),  # 38
    Part.ArcOfCircle(Part.Circle(V(15.646912, 29.483974, 0), V(0, 0, 1), 0.8), math.radians(-48.245637), math.radians(68.757621)),  # 39
], False)
sketch3.addConstraint([
    Sketcher.Constraint("Coincident", 0, 2, 1, 1),
    Sketcher.Constraint("Coincident", 1, 2, 2, 2),
    Sketcher.Constraint("Coincident", 2, 1, 3, 2),
    Sketcher.Constraint("Coincident", 3, 1, 4, 1),
    Sketcher.Constraint("Coincident", 4, 2, 5, 1),
    Sketcher.Constraint("Coincident", 5, 2, 6, 1),
    Sketcher.Constraint("Coincident", 6, 2, 7, 2),
    Sketcher.Constraint("Coincident", 7, 1, 8, 2),
    Sketcher.Constraint("Coincident", 8, 1, 9, 1),
    Sketcher.Constraint("Coincident", 9, 2, 10, 1),
    Sketcher.Constraint("Coincident", 10, 2, 11, 1),
    Sketcher.Constraint("Coincident", 11, 2, 12, 2),
    Sketcher.Constraint("Coincident", 12, 1, 13, 2),
    Sketcher.Constraint("Coincident", 13, 1, 14, 1),
    Sketcher.Constraint("Coincident", 14, 2, 15, 1),
    Sketcher.Constraint("Coincident", 15, 2, 16, 1),
    Sketcher.Constraint("Coincident", 16, 2, 17, 2),
    Sketcher.Constraint("Coincident", 17, 1, 18, 2),
    Sketcher.Constraint("Coincident", 18, 1, 19, 1),
    Sketcher.Constraint("Coincident", 19, 2, 20, 1),
    Sketcher.Constraint("Coincident", 20, 2, 21, 1),
    Sketcher.Constraint("Coincident", 21, 2, 22, 2),
    Sketcher.Constraint("Coincident", 22, 1, 23, 2),
    Sketcher.Constraint("Coincident", 23, 1, 24, 1),
    Sketcher.Constraint("Coincident", 24, 2, 25, 1),
    Sketcher.Constraint("Coincident", 25, 2, 26, 1),
    Sketcher.Constraint("Coincident", 26, 2, 27, 2),
    Sketcher.Constraint("Coincident", 27, 1, 28, 2),
    Sketcher.Constraint("Coincident", 28, 1, 29, 1),
    Sketcher.Constraint("Coincident", 29, 2, 30, 1),
    Sketcher.Constraint("Coincident", 30, 2, 31, 1),
    Sketcher.Constraint("Coincident", 31, 2, 32, 2),
    Sketcher.Constraint("Coincident", 32, 1, 33, 2),
    Sketcher.Constraint("Coincident", 33, 1, 34, 1),
    Sketcher.Constraint("Coincident", 34, 2, 35, 1),
    Sketcher.Constraint("Coincident", 35, 2, 36, 1),
    Sketcher.Constraint("Coincident", 36, 2, 37, 2),
    Sketcher.Constraint("Coincident", 37, 1, 38, 2),
    Sketcher.Constraint("Coincident", 38, 1, 39, 1),
    Sketcher.Constraint("Coincident", 39, 2, 0, 1),
    Sketcher.Constraint("PointOnObject", 2, 3, -2),
    Sketcher.Constraint("PointOnObject", 3, 3, -2),
    Sketcher.Constraint("PointOnObject", 12, 3, -1),
    Sketcher.Constraint("PointOnObject", 13, 3, -1),
    Sketcher.Constraint("PointOnObject", 22, 3, -2),
    Sketcher.Constraint("PointOnObject", 23, 3, -2),
    Sketcher.Constraint("PointOnObject", 32, 3, -1),
    Sketcher.Constraint("PointOnObject", 33, 3, -1),
    Sketcher.Constraint("PointOnObject", 2, 1, -2),
    Sketcher.Constraint("PointOnObject", 12, 1, -1),
    Sketcher.Constraint("PointOnObject", 22, 1, -2),
    Sketcher.Constraint("PointOnObject", 32, 1, -1),
    Sketcher.Constraint("Radius", 3, Q("9 mm")),
    Sketcher.Constraint("Radius", 8, Q("9 mm")),
    Sketcher.Constraint("Radius", 13, Q("9 mm")),
    Sketcher.Constraint("Radius", 18, Q("9 mm")),
    Sketcher.Constraint("Radius", 23, Q("9 mm")),
    Sketcher.Constraint("Radius", 28, Q("9 mm")),
    Sketcher.Constraint("Radius", 33, Q("9 mm")),
    Sketcher.Constraint("Radius", 38, Q("9 mm")),
    Sketcher.Constraint("Radius", 1, Q("2.5 mm")),
    Sketcher.Constraint("Radius", 4, Q("0.8 mm")),
    Sketcher.Constraint("Radius", 6, Q("2.5 mm")),
    Sketcher.Constraint("Radius", 9, Q("0.8 mm")),
    Sketcher.Constraint("Radius", 11, Q("2.5 mm")),
    Sketcher.Constraint("Radius", 14, Q("0.8 mm")),
    Sketcher.Constraint("Radius", 16, Q("2.5 mm")),
    Sketcher.Constraint("Radius", 19, Q("0.8 mm")),
    Sketcher.Constraint("Radius", 21, Q("2.5 mm")),
    Sketcher.Constraint("Radius", 24, Q("0.8 mm")),
    Sketcher.Constraint("Radius", 26, Q("2.5 mm")),
    Sketcher.Constraint("Radius", 29, Q("0.8 mm")),
    Sketcher.Constraint("Radius", 31, Q("2.5 mm")),
    Sketcher.Constraint("Radius", 34, Q("0.8 mm")),
    Sketcher.Constraint("Radius", 36, Q("2.5 mm")),
    Sketcher.Constraint("Radius", 39, Q("0.8 mm")),
    Sketcher.Constraint("Radius", 2, Q("10.822453 mm")),
    Sketcher.Constraint("Radius", 7, Q("10.822453 mm")),
    Sketcher.Constraint("Radius", 12, Q("10.822453 mm")),
    Sketcher.Constraint("Radius", 17, Q("10.822453 mm")),
    Sketcher.Constraint("Radius", 22, Q("10.822453 mm")),
    Sketcher.Constraint("Radius", 27, Q("10.822453 mm")),
    Sketcher.Constraint("Radius", 32, Q("10.822453 mm")),
    Sketcher.Constraint("Radius", 37, Q("10.822453 mm")),
    Sketcher.Constraint("DistanceY", -1, 1, 1, 3, Q("28.845399 mm")),
    Sketcher.Constraint("DistanceX", 11, 3, -1, 1, Q("28.845399 mm")),
    Sketcher.Constraint("DistanceY", 21, 3, -1, 1, Q("28.845399 mm")),
    Sketcher.Constraint("DistanceX", -1, 1, 31, 3, Q("28.845399 mm")),
    Sketcher.Constraint("DistanceX", -1, 1, 1, 3, Q("12.597591 mm")),
    Sketcher.Constraint("DistanceX", 4, 3, -1, 1, Q("9.784281 mm")),
    Sketcher.Constraint("DistanceY", -1, 1, 6, 3, Q("29.304619 mm")),
    Sketcher.Constraint("DistanceX", 8, 3, -1, 1, Q("22.173109 mm")),
    Sketcher.Constraint("DistanceY", -1, 1, 8, 3, Q("22.173109 mm")),
    Sketcher.Constraint("DistanceY", -1, 1, 9, 3, Q("15.646912 mm")),
    Sketcher.Constraint("DistanceY", -1, 1, 11, 3, Q("12.597591 mm")),
    Sketcher.Constraint("DistanceY", 14, 3, -1, 1, Q("9.784281 mm")),
    Sketcher.Constraint("DistanceX", 16, 3, -1, 1, Q("29.304619 mm")),
    Sketcher.Constraint("DistanceX", 18, 3, -1, 1, Q("22.173109 mm")),
    Sketcher.Constraint("DistanceY", 18, 3, -1, 1, Q("22.173109 mm")),
    Sketcher.Constraint("DistanceX", 19, 3, -1, 1, Q("15.646912 mm")),
    Sketcher.Constraint("DistanceX", 21, 3, -1, 1, Q("12.597591 mm")),
    Sketcher.Constraint("DistanceX", -1, 1, 24, 3, Q("9.784281 mm")),
    Sketcher.Constraint("DistanceY", 26, 3, -1, 1, Q("29.304619 mm")),
    Sketcher.Constraint("DistanceX", -1, 1, 28, 3, Q("22.173109 mm")),
    Sketcher.Constraint("DistanceY", 28, 3, -1, 1, Q("22.173109 mm")),
    Sketcher.Constraint("DistanceY", 29, 3, -1, 1, Q("15.646912 mm")),
    Sketcher.Constraint("DistanceY", 31, 3, -1, 1, Q("12.597591 mm")),
    Sketcher.Constraint("DistanceY", -1, 1, 34, 3, Q("9.784281 mm")),
    Sketcher.Constraint("DistanceX", -1, 1, 36, 3, Q("29.304619 mm")),
    Sketcher.Constraint("DistanceX", -1, 1, 38, 3, Q("22.173109 mm")),
    Sketcher.Constraint("DistanceY", -1, 1, 38, 3, Q("22.173109 mm")),
    Sketcher.Constraint("DistanceX", -1, 1, 39, 3, Q("15.646912 mm")),
    Sketcher.Constraint("DistanceY", -1, 1, 0, 2, Q("31.175539 mm")),
    Sketcher.Constraint("DistanceY", -1, 1, 4, 2, Q("32.644562 mm")),
    Sketcher.Constraint("DistanceY", -1, 1, 6, 2, Q("28.208191 mm")),
    Sketcher.Constraint("DistanceX", 8, 1, -1, 1, Q("28.887169 mm")),
    Sketcher.Constraint("DistanceX", 9, 2, -1, 1, Q("30.229619 mm")),
    Sketcher.Constraint("DistanceX", 10, 2, -1, 1, Q("31.175539 mm")),
    Sketcher.Constraint("DistanceX", 14, 2, -1, 1, Q("32.644562 mm")),
    Sketcher.Constraint("DistanceX", 16, 2, -1, 1, Q("28.208191 mm")),
    Sketcher.Constraint("DistanceY", 18, 1, -1, 1, Q("28.887169 mm")),
    Sketcher.Constraint("DistanceY", 19, 2, -1, 1, Q("30.229619 mm")),
    Sketcher.Constraint("DistanceY", 20, 2, -1, 1, Q("31.175539 mm")),
    Sketcher.Constraint("DistanceY", 24, 2, -1, 1, Q("32.644562 mm")),
    Sketcher.Constraint("DistanceY", 26, 2, -1, 1, Q("28.208191 mm")),
    Sketcher.Constraint("DistanceX", -1, 1, 28, 1, Q("28.887169 mm")),
    Sketcher.Constraint("DistanceX", -1, 1, 29, 2, Q("30.229619 mm")),
    Sketcher.Constraint("DistanceX", -1, 1, 30, 2, Q("31.175539 mm")),
    Sketcher.Constraint("DistanceX", -1, 1, 34, 2, Q("32.644562 mm")),
    Sketcher.Constraint("DistanceX", -1, 1, 36, 2, Q("28.208191 mm")),
    Sketcher.Constraint("DistanceY", -1, 1, 38, 1, Q("28.887169 mm")),
    Sketcher.Constraint("DistanceY", -1, 1, 39, 2, Q("30.229619 mm")),
    Sketcher.Constraint("Distance", 5, Q("2.610773 mm")),
    Sketcher.Constraint("Distance", 15, Q("2.610773 mm")),
    Sketcher.Constraint("Distance", 25, Q("2.610773 mm")),
    Sketcher.Constraint("Distance", 35, Q("2.610773 mm")),
    Sketcher.Constraint("DistanceX", 6, 3, -1, 1, Q("11.488935 mm")),
    Sketcher.Constraint("DistanceY", 16, 3, -1, 1, Q("11.488935 mm")),
    Sketcher.Constraint("DistanceX", -1, 1, 26, 3, Q("11.488935 mm")),
    Sketcher.Constraint("DistanceY", -1, 1, 36, 3, Q("11.488935 mm")),
    Sketcher.Constraint("DistanceX", -1, 1, 1, 2, Q("10.233613 mm")),
    Sketcher.Constraint("DistanceX", 3, 1, -1, 1, Q("8.985564 mm")),
    Sketcher.Constraint("DistanceX", 7, 1, -1, 1, Q("15.809148 mm")),
    Sketcher.Constraint("DistanceX", 11, 2, -1, 1, Q("29.658793 mm")),
    Sketcher.Constraint("DistanceX", 13, 1, -1, 1, Q("31.867062 mm")),
    Sketcher.Constraint("DistanceX", 17, 1, -1, 1, Q("15.809148 mm")),
    Sketcher.Constraint("DistanceX", 21, 2, -1, 1, Q("10.233613 mm")),
    Sketcher.Constraint("DistanceX", -1, 1, 23, 1, Q("8.985564 mm")),
    Sketcher.Constraint("DistanceX", -1, 1, 27, 1, Q("15.809148 mm")),
    Sketcher.Constraint("DistanceX", -1, 1, 31, 2, Q("29.658793 mm")),
    Sketcher.Constraint("DistanceX", -1, 1, 33, 1, Q("31.867062 mm")),
    Sketcher.Constraint("DistanceX", -1, 1, 37, 1, Q("15.809148 mm")),
])
pad2 = body.newObject("PartDesign::Pad", "Pad001")
pad2.Profile = sketch3
pad2.Length = 4

# Sketch on XY plane
sketch4 = body.newObject("Sketcher::SketchObject", "Sketch003")
sketch4.AttachmentSupport = (doc.getObject("XY_Plane"), [""])
sketch4.MapMode = "FlatFace"
sketch4.AttachmentOffset = App.Placement(V(0, 0, 29), App.Rotation())
sketch4.addGeometry([
    Part.Circle(V(0, 0, 0), V(0, 0, 1), 3.5),  # 0
    Part.Circle(V(8, 0, 0), V(0, 0, 1), 1.7),  # 1
    Part.Circle(V(0, -8, 0), V(0, 0, 1), 1.7),  # 2
    Part.Circle(V(-8, 0, 0), V(0, 0, 1), 1.7),  # 3
    Part.Circle(V(0, 8, 0), V(0, 0, 1), 1.7),  # 4
    Part.Circle(V(8.5, 8.5, 0), V(0, 0, 1), 2.3),  # 5
    Part.Circle(V(8.5, -8.5, 0), V(0, 0, 1), 2.3),  # 6
    Part.Circle(V(-8.5, -8.5, 0), V(0, 0, 1), 2.3),  # 7
    Part.Circle(V(-8.5, 8.5, 0), V(0, 0, 1), 2.3),  # 8
], False)
sketch4.addConstraint([
    Sketcher.Constraint("Coincident", 0, 3, -1, 1),
    Sketcher.Constraint("Equal", 1, 2),
    Sketcher.Constraint("Equal", 2, 3),
    Sketcher.Constraint("Equal", 3, 4),
    Sketcher.Constraint("Equal", 5, 6),
    Sketcher.Constraint("Equal", 6, 7),
    Sketcher.Constraint("Equal", 7, 8),
    Sketcher.Constraint("Symmetric", 1, 3, 3, 3, -1, 1),
    Sketcher.Constraint("Symmetric", 2, 3, 4, 3, -1, 1),
    Sketcher.Constraint("Symmetric", 5, 3, 7, 3, -1, 1),
    Sketcher.Constraint("Symmetric", 6, 3, 8, 3, -1, 1),
    Sketcher.Constraint("Symmetric", 6, 3, 7, 3, -2),
    Sketcher.Constraint("PointOnObject", 1, 3, -1),
    Sketcher.Constraint("PointOnObject", 2, 3, -2),
    Sketcher.Constraint("Diameter", 0, Q("7 mm")),
    Sketcher.Constraint("Diameter", 1, Q("3.4 mm")),
    Sketcher.Constraint("Diameter", 5, Q("4.6 mm")),
    Sketcher.Constraint("DistanceX", -1, 1, 1, 3, Q("8 mm")),
    Sketcher.Constraint("DistanceY", 2, 3, -1, 1, Q("8 mm")),
    Sketcher.Constraint("DistanceX", -1, 1, 5, 3, Q("8.485281 mm")),
    Sketcher.Constraint("DistanceY", -1, 1, 5, 3, Q("8.485281 mm")),
])
pocket2 = body.newObject("PartDesign::Pocket", "Pocket001")
pocket2.Profile = sketch4
pocket2.Type = "ThroughAll"

# Sketch on XY plane
sketch5 = body.newObject("Sketcher::SketchObject", "Sketch004")
sketch5.AttachmentSupport = (doc.getObject("XY_Plane"), [""])
sketch5.MapMode = "FlatFace"
sketch5.AttachmentOffset = App.Placement(V(0, 0, 33.6), App.Rotation())
sketch5.addGeometry([
    Part.Circle(V(-8.5, 8.5, 0), V(0, 0, 1), 4.7),  # 0
    Part.Circle(V(-8.5, 8.5, 0), V(0, 0, 1), 2.3),  # 1
    Part.Circle(V(8.5, 8.5, 0), V(0, 0, 1), 4.7),  # 2
    Part.Circle(V(8.5, 8.5, 0), V(0, 0, 1), 2.3),  # 3
    Part.Circle(V(8.5, -8.5, 0), V(0, 0, 1), 4.7),  # 4
    Part.Circle(V(8.5, -8.5, 0), V(0, 0, 1), 2.3),  # 5
    Part.Circle(V(-8.5, -8.5, 0), V(0, 0, 1), 4.7),  # 6
    Part.Circle(V(-8.5, -8.5, 0), V(0, 0, 1), 2.3),  # 7
], False)
sketch5.addConstraint([
    Sketcher.Constraint("Coincident", 1, 3, 0, 3),
    Sketcher.Constraint("Coincident", 3, 3, 2, 3),
    Sketcher.Constraint("Coincident", 5, 3, 4, 3),
    Sketcher.Constraint("Coincident", 7, 3, 6, 3),
    Sketcher.Constraint("Equal", 0, 2),
    Sketcher.Constraint("Equal", 1, 3),
    Sketcher.Constraint("Equal", 2, 4),
    Sketcher.Constraint("Equal", 3, 5),
    Sketcher.Constraint("Equal", 4, 6),
    Sketcher.Constraint("Equal", 5, 7),
    Sketcher.Constraint("Symmetric", 0, 3, 4, 3, -1, 1),
    Sketcher.Constraint("Symmetric", 2, 3, 6, 3, -1, 1),
    Sketcher.Constraint("Symmetric", 0, 3, 2, 3, -2),
    Sketcher.Constraint("Diameter", 0, Q("9.4 mm")),
    Sketcher.Constraint("Diameter", 1, Q("4.6 mm")),
    Sketcher.Constraint("DistanceX", 0, 3, -1, 1, Q("8.485281 mm")),
    Sketcher.Constraint("DistanceY", -1, 1, 0, 3, Q("8.485281 mm")),
])
pad3 = body.newObject("PartDesign::Pad", "Pad002")
pad3.Profile = sketch5
pad3.Length = 4.6
pad3.Reversed = True

doc.recompute()
